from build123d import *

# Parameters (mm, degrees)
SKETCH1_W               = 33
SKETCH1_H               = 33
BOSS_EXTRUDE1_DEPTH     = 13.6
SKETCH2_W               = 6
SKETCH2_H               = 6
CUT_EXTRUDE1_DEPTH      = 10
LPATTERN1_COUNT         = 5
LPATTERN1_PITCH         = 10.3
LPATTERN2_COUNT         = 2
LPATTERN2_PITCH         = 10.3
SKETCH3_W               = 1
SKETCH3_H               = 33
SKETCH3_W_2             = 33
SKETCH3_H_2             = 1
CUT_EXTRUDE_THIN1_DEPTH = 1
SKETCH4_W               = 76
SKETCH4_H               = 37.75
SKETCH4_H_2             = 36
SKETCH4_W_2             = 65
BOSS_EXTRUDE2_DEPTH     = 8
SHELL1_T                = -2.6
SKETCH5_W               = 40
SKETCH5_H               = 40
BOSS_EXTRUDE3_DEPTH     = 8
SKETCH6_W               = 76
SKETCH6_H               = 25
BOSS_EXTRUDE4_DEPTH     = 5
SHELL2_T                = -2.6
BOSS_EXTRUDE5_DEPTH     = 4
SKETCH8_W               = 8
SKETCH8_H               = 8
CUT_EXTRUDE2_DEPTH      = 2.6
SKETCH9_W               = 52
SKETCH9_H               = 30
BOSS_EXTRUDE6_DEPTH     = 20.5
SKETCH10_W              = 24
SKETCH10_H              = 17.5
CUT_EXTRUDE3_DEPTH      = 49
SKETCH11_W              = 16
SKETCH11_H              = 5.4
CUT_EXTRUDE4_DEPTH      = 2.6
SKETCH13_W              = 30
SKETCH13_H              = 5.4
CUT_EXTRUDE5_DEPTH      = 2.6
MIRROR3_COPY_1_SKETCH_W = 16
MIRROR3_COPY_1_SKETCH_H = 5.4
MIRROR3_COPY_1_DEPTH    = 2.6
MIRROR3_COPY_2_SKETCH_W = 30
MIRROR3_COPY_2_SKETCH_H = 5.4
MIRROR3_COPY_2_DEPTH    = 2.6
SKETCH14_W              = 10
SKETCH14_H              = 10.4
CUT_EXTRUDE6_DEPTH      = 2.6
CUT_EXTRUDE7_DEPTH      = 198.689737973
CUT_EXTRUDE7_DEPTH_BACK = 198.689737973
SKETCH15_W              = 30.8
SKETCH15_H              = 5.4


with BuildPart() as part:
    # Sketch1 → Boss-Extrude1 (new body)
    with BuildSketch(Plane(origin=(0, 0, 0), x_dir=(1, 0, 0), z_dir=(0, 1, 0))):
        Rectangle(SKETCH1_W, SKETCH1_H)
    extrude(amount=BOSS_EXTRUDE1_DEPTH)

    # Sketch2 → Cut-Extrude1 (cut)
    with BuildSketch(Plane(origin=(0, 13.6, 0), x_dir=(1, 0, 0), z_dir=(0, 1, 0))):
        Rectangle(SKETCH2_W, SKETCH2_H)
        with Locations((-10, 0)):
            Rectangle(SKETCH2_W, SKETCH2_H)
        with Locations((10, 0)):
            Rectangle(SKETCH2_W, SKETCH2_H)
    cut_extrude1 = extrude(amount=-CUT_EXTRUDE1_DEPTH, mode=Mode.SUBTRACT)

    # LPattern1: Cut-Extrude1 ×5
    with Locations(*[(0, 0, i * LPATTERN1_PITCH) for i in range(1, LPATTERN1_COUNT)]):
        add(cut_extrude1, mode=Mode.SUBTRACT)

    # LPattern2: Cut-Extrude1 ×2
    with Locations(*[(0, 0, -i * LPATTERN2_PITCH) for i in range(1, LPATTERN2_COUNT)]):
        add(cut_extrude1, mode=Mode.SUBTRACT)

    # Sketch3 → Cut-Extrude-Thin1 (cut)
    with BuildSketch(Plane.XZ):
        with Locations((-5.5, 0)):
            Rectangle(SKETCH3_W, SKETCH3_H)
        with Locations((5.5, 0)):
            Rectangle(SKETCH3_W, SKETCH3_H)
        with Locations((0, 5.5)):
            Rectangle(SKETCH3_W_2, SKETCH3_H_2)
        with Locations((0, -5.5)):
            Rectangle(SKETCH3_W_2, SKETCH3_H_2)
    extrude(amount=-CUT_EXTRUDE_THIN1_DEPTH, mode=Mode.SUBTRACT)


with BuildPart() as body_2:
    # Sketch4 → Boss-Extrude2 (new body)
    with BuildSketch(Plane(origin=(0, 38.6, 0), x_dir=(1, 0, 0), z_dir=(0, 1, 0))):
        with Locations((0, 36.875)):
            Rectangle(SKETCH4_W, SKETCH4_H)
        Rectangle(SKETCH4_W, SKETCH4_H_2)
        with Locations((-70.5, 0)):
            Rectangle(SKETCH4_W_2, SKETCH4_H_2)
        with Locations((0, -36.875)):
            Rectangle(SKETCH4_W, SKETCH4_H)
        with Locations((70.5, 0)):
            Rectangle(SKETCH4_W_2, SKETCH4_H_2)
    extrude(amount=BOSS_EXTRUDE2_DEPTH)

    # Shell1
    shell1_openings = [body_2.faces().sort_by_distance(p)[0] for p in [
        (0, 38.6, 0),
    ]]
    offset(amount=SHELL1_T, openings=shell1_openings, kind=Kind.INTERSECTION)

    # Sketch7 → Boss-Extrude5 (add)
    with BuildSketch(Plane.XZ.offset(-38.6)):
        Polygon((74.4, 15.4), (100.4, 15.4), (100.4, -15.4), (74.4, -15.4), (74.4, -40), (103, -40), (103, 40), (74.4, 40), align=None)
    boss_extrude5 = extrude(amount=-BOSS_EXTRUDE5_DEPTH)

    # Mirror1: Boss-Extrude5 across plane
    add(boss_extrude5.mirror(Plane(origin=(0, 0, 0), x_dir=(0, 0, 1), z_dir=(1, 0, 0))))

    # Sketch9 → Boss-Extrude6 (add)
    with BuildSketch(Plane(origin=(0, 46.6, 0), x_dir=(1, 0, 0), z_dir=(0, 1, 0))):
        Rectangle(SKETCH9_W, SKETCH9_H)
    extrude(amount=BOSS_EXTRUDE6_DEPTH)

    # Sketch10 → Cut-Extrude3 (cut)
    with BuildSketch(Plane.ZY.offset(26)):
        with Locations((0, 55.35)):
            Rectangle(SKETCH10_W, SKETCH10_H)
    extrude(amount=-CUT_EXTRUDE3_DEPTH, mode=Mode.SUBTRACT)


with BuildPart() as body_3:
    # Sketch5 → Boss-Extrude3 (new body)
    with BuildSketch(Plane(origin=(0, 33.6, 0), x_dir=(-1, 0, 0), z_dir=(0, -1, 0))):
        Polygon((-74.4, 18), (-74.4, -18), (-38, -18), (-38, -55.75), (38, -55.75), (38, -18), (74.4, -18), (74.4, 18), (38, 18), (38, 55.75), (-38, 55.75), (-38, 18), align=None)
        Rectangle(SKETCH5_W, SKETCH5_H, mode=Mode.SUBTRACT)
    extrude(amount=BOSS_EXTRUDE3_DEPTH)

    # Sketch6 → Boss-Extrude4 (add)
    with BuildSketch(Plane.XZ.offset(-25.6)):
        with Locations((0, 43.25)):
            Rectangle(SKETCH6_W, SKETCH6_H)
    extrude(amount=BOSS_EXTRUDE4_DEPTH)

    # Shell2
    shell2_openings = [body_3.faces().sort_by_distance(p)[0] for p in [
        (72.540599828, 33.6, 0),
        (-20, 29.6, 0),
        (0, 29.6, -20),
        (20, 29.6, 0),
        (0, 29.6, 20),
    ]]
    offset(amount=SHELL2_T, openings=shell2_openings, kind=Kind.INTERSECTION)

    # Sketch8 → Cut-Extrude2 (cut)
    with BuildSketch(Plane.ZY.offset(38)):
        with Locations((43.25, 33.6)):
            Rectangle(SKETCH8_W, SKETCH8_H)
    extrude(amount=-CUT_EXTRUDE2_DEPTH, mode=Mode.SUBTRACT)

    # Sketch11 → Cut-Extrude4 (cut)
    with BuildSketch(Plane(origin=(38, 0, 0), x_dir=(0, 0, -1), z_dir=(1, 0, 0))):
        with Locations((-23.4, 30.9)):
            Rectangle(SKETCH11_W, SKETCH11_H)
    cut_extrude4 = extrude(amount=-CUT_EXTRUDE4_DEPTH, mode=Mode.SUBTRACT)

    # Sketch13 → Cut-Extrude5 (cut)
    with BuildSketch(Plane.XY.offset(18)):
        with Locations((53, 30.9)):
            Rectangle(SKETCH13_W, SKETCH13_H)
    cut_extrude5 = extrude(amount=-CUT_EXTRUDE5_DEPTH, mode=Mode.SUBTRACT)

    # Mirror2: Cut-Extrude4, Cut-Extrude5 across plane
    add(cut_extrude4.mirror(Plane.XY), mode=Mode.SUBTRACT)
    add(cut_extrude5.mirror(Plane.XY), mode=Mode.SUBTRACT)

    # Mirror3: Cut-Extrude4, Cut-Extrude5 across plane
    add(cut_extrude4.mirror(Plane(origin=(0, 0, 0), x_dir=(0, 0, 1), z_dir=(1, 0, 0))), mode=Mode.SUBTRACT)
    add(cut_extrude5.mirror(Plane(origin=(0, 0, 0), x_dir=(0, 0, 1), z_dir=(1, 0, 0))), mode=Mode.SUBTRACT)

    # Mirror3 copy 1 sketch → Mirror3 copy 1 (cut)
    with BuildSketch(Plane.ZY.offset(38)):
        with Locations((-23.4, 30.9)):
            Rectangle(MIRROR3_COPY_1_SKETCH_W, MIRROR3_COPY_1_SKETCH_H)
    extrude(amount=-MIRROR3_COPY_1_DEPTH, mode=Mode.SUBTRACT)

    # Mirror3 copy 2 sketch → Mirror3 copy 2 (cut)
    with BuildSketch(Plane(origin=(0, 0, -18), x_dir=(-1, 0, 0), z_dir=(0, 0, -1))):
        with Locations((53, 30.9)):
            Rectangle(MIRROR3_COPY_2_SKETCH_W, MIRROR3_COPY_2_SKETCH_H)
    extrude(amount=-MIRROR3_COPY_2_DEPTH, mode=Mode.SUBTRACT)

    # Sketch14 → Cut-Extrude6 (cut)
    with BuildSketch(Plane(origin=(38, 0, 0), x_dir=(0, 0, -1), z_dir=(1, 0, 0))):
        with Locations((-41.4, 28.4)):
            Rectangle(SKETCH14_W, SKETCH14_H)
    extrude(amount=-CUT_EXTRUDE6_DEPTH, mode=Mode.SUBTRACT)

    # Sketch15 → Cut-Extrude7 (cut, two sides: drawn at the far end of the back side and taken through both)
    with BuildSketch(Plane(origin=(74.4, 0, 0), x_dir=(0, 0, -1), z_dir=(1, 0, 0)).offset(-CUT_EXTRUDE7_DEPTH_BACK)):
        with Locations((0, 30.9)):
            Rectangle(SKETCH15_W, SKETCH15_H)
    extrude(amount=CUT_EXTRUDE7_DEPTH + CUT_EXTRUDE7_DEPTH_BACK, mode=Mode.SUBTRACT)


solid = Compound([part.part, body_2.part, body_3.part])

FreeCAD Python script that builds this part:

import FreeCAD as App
import Part
import Sketcher


def faces_at(feature, points):
    """Names of the faces that lie closest to the given points."""
    faces = feature.Shape.Faces
    near = lambda p: min(range(len(faces)), key=lambda i: faces[i].distToShape(Part.Vertex(*p))[0])
    return sorted({f"Face{near(p) + 1}" for p in points})


def add_polygon(sketch, points):
    """Adds a closed chain of lines whose ends are joined by coincident constraints."""
    first, n = sketch.GeometryCount, len(points)
    for a, b in zip(points, points[1:] + points[:1]):
        sketch.addGeometry(Part.LineSegment(App.Vector(*a, 0), App.Vector(*b, 0)), False)
    for i in range(n):
        sketch.addConstraint(Sketcher.Constraint("Coincident", first + i, 2, first + (i + 1) % n, 1))

doc = App.newDocument("Part")
body = doc.addObject("PartDesign::Body", "Body")

sketch1 = body.newObject("Sketcher::SketchObject", "Sketch")
sketch1.AttachmentSupport = (doc.getObject("XZ_Plane"), [""])
sketch1.MapMode = "FlatFace"
add_polygon(sketch1, [(-16, -16), (-16, 16), (16, 16), (16, -16)])
sketch1.addConstraint(Sketcher.Constraint("Vertical", 0))
sketch1.addConstraint(Sketcher.Constraint("Horizontal", 1))
sketch1.addConstraint(Sketcher.Constraint("Vertical", 2))
sketch1.addConstraint(Sketcher.Constraint("Horizontal", 3))
sketch1.addConstraint(Sketcher.Constraint("Symmetric", 0, 2, 2, 2, -1, 1))
sketch1.addConstraint(Sketcher.Constraint("Equal", 3, 0))
sketch1.addConstraint(Sketcher.Constraint("DistanceX", 1, 1, 1, 2, 33.0))
pad1 = body.newObject("PartDesign::Pad", "Pad")
pad1.Profile = sketch1
pad1.Length = 13.6
pad1.Reversed = True

sketch2 = body.newObject("Sketcher::SketchObject", "Sketch001")
sketch2.AttachmentSupport = (doc.getObject("XZ_Plane"), [""])
sketch2.MapMode = "FlatFace"
sketch2.AttachmentOffset = App.Placement(App.Vector(0, 0, -13.6), App.Rotation())
add_polygon(sketch2, [(-3, -3), (-3, 3), (3, 3), (3, -3)])
add_polygon(sketch2, [(-13, -3), (-13, 3), (-7, 3), (-7, -3)])
add_polygon(sketch2, [(7, -3), (7, 3), (13, 3), (13, -3)])
sketch2.addConstraint(Sketcher.Constraint("Vertical", 0))
sketch2.addConstraint(Sketcher.Constraint("Horizontal", 1))
sketch2.addConstraint(Sketcher.Constraint("Vertical", 2))
sketch2.addConstraint(Sketcher.Constraint("Horizontal", 3))
sketch2.addConstraint(Sketcher.Constraint("Vertical", 4))
sketch2.addConstraint(Sketcher.Constraint("Horizontal", 5))
sketch2.addConstraint(Sketcher.Constraint("Vertical", 6))
sketch2.addConstraint(Sketcher.Constraint("Horizontal", 7))
sketch2.addConstraint(Sketcher.Constraint("Vertical", 8))
sketch2.addConstraint(Sketcher.Constraint("Horizontal", 9))
sketch2.addConstraint(Sketcher.Constraint("Vertical", 10))
sketch2.addConstraint(Sketcher.Constraint("Horizontal", 11))
sketch2.addConstraint(Sketcher.Constraint("Symmetric", 0, 2, 2, 2, -1, 1))
sketch2.addConstraint(Sketcher.Constraint("Symmetric", 6, 2, 8, 2, -1, 1))
sketch2.addConstraint(Sketcher.Constraint("Symmetric", 4, 2, 10, 2, -1, 1))
sketch2.addConstraint(Sketcher.Constraint("Horizontal", 1, 2, 4, 2))
sketch2.addConstraint(Sketcher.Constraint("Horizontal", 3, 2, 6, 2))
sketch2.addConstraint(Sketcher.Constraint("Equal", 3, 5))
sketch2.addConstraint(Sketcher.Constraint("Equal", 11, 0))
sketch2.addConstraint(Sketcher.Constraint("DistanceX", 1, 1, 1, 2, 6.0))
sketch2.addConstraint(Sketcher.Constraint("DistanceX", 4, 2, -1, 1, 13.0))
pocket1 = body.newObject("PartDesign::Pocket", "Pocket")
pocket1.Profile = sketch2
pocket1.Length = 10
pocket1.Reversed = True
doc.recompute()

linearpattern = body.newObject("PartDesign::LinearPattern", "LinearPattern")
linearpattern.Originals = [pocket1]
linearpattern.Direction = (doc.getObject("Z_Axis"), [""])
linearpattern.Mode = "offset"
linearpattern.Offset = 10.3
linearpattern.Occurrences = 5
body.Tip = linearpattern
doc.recompute()

linearpattern2 = body.newObject("PartDesign::LinearPattern", "LinearPattern001")
linearpattern2.Originals = [pocket1]
linearpattern2.Direction = (doc.getObject("Z_Axis"), [""])
linearpattern2.Mode = "offset"
linearpattern2.Offset = 10.3
linearpattern2.Occurrences = 2
linearpattern2.Reversed = True
body.Tip = linearpattern2

sketch3 = body.newObject("Sketcher::SketchObject", "Sketch002")
sketch3.AttachmentSupport = (doc.getObject("XZ_Plane"), [""])
sketch3.MapMode = "FlatFace"
add_polygon(sketch3, [(-6, -6), (-6, -16.5), (-5, -16.5), (-5, -6), (5, -6), (5, -16.5), (6, -16.5), (6, -6), (16.5, -6), (16.5, -5), (6, -5), (6, 5), (16.5, 5), (16.5, 6), (6, 6), (6, 16.5), (5, 16.5), (5, 6), (-5, 6), (-5, 16.5), (-6, 16.5), (-6, 6), (-16.5, 6), (-16.5, 5), (-6, 5), (-6, -5), (-16.5, -5), (-16.5, -6)])
add_polygon(sketch3, [(5, 5), (5, -5), (-5, -5), (-5, 5)])
sketch3.addConstraint(Sketcher.Constraint("Vertical", 0))
sketch3.addConstraint(Sketcher.Constraint("Horizontal", 1))
sketch3.addConstraint(Sketcher.Constraint("Vertical", 2))
sketch3.addConstraint(Sketcher.Constraint("Horizontal", 3))
sketch3.addConstraint(Sketcher.Constraint("Vertical", 4))
sketch3.addConstraint(Sketcher.Constraint("Horizontal", 5))
sketch3.addConstraint(Sketcher.Constraint("Vertical", 6))
sketch3.addConstraint(Sketcher.Constraint("Horizontal", 7))
sketch3.addConstraint(Sketcher.Constraint("Vertical", 8))
sketch3.addConstraint(Sketcher.Constraint("Horizontal", 9))
sketch3.addConstraint(Sketcher.Constraint("Vertical", 10))
sketch3.addConstraint(Sketcher.Constraint("Horizontal", 11))
sketch3.addConstraint(Sketcher.Constraint("Vertical", 12))
sketch3.addConstraint(Sketcher.Constraint("Horizontal", 13))
sketch3.addConstraint(Sketcher.Constraint("Vertical", 14))
sketch3.addConstraint(Sketcher.Constraint("Horizontal", 15))
sketch3.addConstraint(Sketcher.Constraint("Vertical", 16))
sketch3.addConstraint(Sketcher.Constraint("Horizontal", 17))
sketch3.addConstraint(Sketcher.Constraint("Vertical", 18))
sketch3.addConstraint(Sketcher.Constraint("Horizontal", 19))
sketch3.addConstraint(Sketcher.Constraint("Vertical", 20))
sketch3.addConstraint(Sketcher.Constraint("Horizontal", 21))
sketch3.addConstraint(Sketcher.Constraint("Vertical", 22))
sketch3.addConstraint(Sketcher.Constraint("Horizontal", 23))
sketch3.addConstraint(Sketcher.Constraint("Vertical", 24))
sketch3.addConstraint(Sketcher.Constraint("Horizontal", 25))
sketch3.addConstraint(Sketcher.Constraint("Vertical", 26))
sketch3.addConstraint(Sketcher.Constraint("Horizontal", 27))
sketch3.addConstraint(Sketcher.Constraint("Vertical", 28))
sketch3.addConstraint(Sketcher.Constraint("Horizontal", 29))
sketch3.addConstraint(Sketcher.Constraint("Vertical", 30))
sketch3.addConstraint(Sketcher.Constraint("Horizontal", 31))
sketch3.addConstraint(Sketcher.Constraint("Symmetric", 0, 2, 14, 2, -1, 1))
sketch3.addConstraint(Sketcher.Constraint("Symmetric", 2, 2, 16, 2, -1, 1))
sketch3.addConstraint(Sketcher.Constraint("Symmetric", 4, 2, 18, 2, -1, 1))
sketch3.addConstraint(Sketcher.Constraint("Symmetric", 6, 2, 20, 2, -1, 1))
sketch3.addConstraint(Sketcher.Constraint("Symmetric", 8, 2, 22, 2, -1, 1))
sketch3.addConstraint(Sketcher.Constraint("Symmetric", 10, 2, 24, 2, -1, 1))
sketch3.addConstraint(Sketcher.Constraint("Symmetric", 12, 2, 26, 2, -1, 1))
sketch3.addConstraint(Sketcher.Constraint("Symmetric", 28, 2, 30, 2, -1, 1))
sketch3.addConstraint(Sketcher.Constraint("Symmetric", 1, 2, 4, 2, -2))
sketch3.addConstraint(Sketcher.Constraint("Symmetric", 13, 2, 20, 2, -2))
sketch3.addConstraint(Sketcher.Constraint("Symmetric", 11, 2, 22, 2, -2))
sketch3.addConstraint(Sketcher.Constraint("Horizontal", 3, 2, 6, 2))
sketch3.addConstraint(Sketcher.Constraint("Horizontal", 25, 2, 28, 2))
sketch3.addConstraint(Sketcher.Constraint("Vertical", 6, 2, 9, 2))
sketch3.addConstraint(Sketcher.Constraint("Vertical", 16, 2, 28, 2))
sketch3.addConstraint(Sketcher.Constraint("Equal", 27, 0))
sketch3.addConstraint(Sketcher.Constraint("Equal", 19, 8))
sketch3.addConstraint(Sketcher.Constraint("Equal", 31, 10))
sketch3.addConstraint(Sketcher.Constraint("DistanceX", 1, 1, 1, 2, 1.0))
sketch3.addConstraint(Sketcher.Constraint("DistanceX", 3, 1, 3, 2, 10.0))
sketch3.addConstraint(Sketcher.Constraint("DistanceX", 7, 1, 7, 2, 10.5))
pocket2 = body.newObject("PartDesign::Pocket", "Pocket001")
pocket2.Profile = sketch3
pocket2.Length = 1
body2 = doc.addObject("PartDesign::Body", "Body001")

sketch4 = body2.newObject("Sketcher::SketchObject", "Sketch003")
sketch4.AttachmentSupport = (doc.getObject("XZ_Plane001"), [""])
sketch4.MapMode = "FlatFace"
sketch4.AttachmentOffset = App.Placement(App.Vector(0, 0, -38.6), App.Rotation())
add_polygon(sketch4, [(-38, -56), (-38, -18), (-103, -18), (-103, 18), (-38, 18), (-38, 56), (38, 56), (38, 18), (103, 18), (103, -18), (38, -18), (38, -56)])
sketch4.addConstraint(Sketcher.Constraint("Vertical", 0))
sketch4.addConstraint(Sketcher.Constraint("Horizontal", 1))
sketch4.addConstraint(Sketcher.Constraint("Vertical", 2))
sketch4.addConstraint(Sketcher.Constraint("Horizontal", 3))
sketch4.addConstraint(Sketcher.Constraint("Vertical", 4))
sketch4.addConstraint(Sketcher.Constraint("Horizontal", 5))
sketch4.addConstraint(Sketcher.Constraint("Vertical", 6))
sketch4.addConstraint(Sketcher.Constraint("Horizontal", 7))
sketch4.addConstraint(Sketcher.Constraint("Vertical", 8))
sketch4.addConstraint(Sketcher.Constraint("Horizontal", 9))
sketch4.addConstraint(Sketcher.Constraint("Vertical", 10))
sketch4.addConstraint(Sketcher.Constraint("Horizontal", 11))
sketch4.addConstraint(Sketcher.Constraint("Symmetric", 0, 2, 6, 2, -1, 1))
sketch4.addConstraint(Sketcher.Constraint("Symmetric", 2, 2, 8, 2, -1, 1))
sketch4.addConstraint(Sketcher.Constraint("Symmetric", 4, 2, 10, 2, -1, 1))
sketch4.addConstraint(Sketcher.Constraint("Symmetric", 3, 2, 6, 2, -2))
sketch4.addConstraint(Sketcher.Constraint("DistanceX", 1, 2, 1, 1, 65.0))
sketch4.addConstraint(Sketcher.Constraint("DistanceX", 5, 1, 5, 2, 76.0))
sketch4.addConstraint(Sketcher.Constraint("DistanceY", 2, 1, 2, 2, 36.0))
sketch4.addConstraint(Sketcher.Constraint("DistanceY", 0, 1, 0, 2, 37.75))
pad2 = body2.newObject("PartDesign::Pad", "Pad001")
pad2.Profile = sketch4
pad2.Length = 8
pad2.Reversed = True
doc.recompute()

thickness = body2.newObject("PartDesign::Thickness", "Thickness")
thickness.Base = (pad2, faces_at(pad2, [(0, 38.6, 0)]))
thickness.Value = 2.6
thickness.Reversed = True
thickness.Join = "Intersection"

sketch5 = body2.newObject("Sketcher::SketchObject", "Sketch004")
sketch5.AttachmentSupport = (doc.getObject("XZ_Plane001"), [""])
sketch5.MapMode = "FlatFace"
sketch5.AttachmentOffset = App.Placement(App.Vector(0, 0, -38.6), App.Rotation())
add_polygon(sketch5, [(74, 15), (100, 15), (100, -15), (74, -15), (74, -40), (103, -40), (103, 40), (74, 40)])
sketch5.addConstraint(Sketcher.Constraint("Horizontal", 0))
sketch5.addConstraint(Sketcher.Constraint("Vertical", 1))
sketch5.addConstraint(Sketcher.Constraint("Horizontal", 2))
sketch5.addConstraint(Sketcher.Constraint("Vertical", 3))
sketch5.addConstraint(Sketcher.Constraint("Horizontal", 4))
sketch5.addConstraint(Sketcher.Constraint("Vertical", 5))
sketch5.addConstraint(Sketcher.Constraint("Horizontal", 6))
sketch5.addConstraint(Sketcher.Constraint("Vertical", 7))
sketch5.addConstraint(Sketcher.Constraint("Symmetric", 3, 2, 6, 2, -1))
sketch5.addConstraint(Sketcher.Constraint("Equal", 3, 7))
sketch5.addConstraint(Sketcher.Constraint("DistanceX", 0, 1, 0, 2, 26.0))
sketch5.addConstraint(Sketcher.Constraint("DistanceY", 5, 1, 5, 2, 80.0))
sketch5.addConstraint(Sketcher.Constraint("DistanceX", 4, 1, 4, 2, 28.6))
sketch5.addConstraint(Sketcher.Constraint("DistanceY", 1, 2, 1, 1, 30.8))
sketch5.addConstraint(Sketcher.Constraint("DistanceX", -1, 1, 4, 2, 103.0))
pad3 = body2.newObject("PartDesign::Pad", "Pad002")
pad3.Profile = sketch5
pad3.Length = 4
pad3.Reversed = True
doc.recompute()

mirrored = body2.newObject("PartDesign::Mirrored", "Mirrored")
mirrored.Originals = [pad3]
mirrored.MirrorPlane = (doc.getObject("YZ_Plane001"), [""])
body2.Tip = mirrored

sketch6 = body2.newObject("Sketcher::SketchObject", "Sketch005")
sketch6.AttachmentSupport = (doc.getObject("XZ_Plane001"), [""])
sketch6.MapMode = "FlatFace"
sketch6.AttachmentOffset = App.Placement(App.Vector(0, 0, -46.6), App.Rotation())
add_polygon(sketch6, [(-26, -15), (-26, 15), (26, 15), (26, -15)])
sketch6.addConstraint(Sketcher.Constraint("Vertical", 0))
sketch6.addConstraint(Sketcher.Constraint("Horizontal", 1))
sketch6.addConstraint(Sketcher.Constraint("Vertical", 2))
sketch6.addConstraint(Sketcher.Constraint("Horizontal", 3))
sketch6.addConstraint(Sketcher.Constraint("Symmetric", 0, 2, 2, 2, -1, 1))
sketch6.addConstraint(Sketcher.Constraint("DistanceX", 1, 1, 1, 2, 52.0))
sketch6.addConstraint(Sketcher.Constraint("DistanceY", 0, 1, 0, 2, 30.0))
pad4 = body2.newObject("PartDesign::Pad", "Pad003")
pad4.Profile = sketch6
pad4.Length = 20.5
pad4.Reversed = True

sketch7 = body2.newObject("Sketcher::SketchObject", "Sketch006")
sketch7.AttachmentSupport = (doc.getObject("YZ_Plane001"), [""])
sketch7.MapMode = "FlatFace"
sketch7.AttachmentOffset = App.Placement(App.Vector(0, 0, -26), App.Rotation())
add_polygon(sketch7, [(64, -12), (47, -12), (47, 12), (64, 12)])
sketch7.addConstraint(Sketcher.Constraint("Horizontal", 0))
sketch7.addConstraint(Sketcher.Constraint("Vertical", 1))
sketch7.addConstraint(Sketcher.Constraint("Horizontal", 2))
sketch7.addConstraint(Sketcher.Constraint("Vertical", 3))
sketch7.addConstraint(Sketcher.Constraint("DistanceY", 1, 1, 1, 2, 24.0))
sketch7.addConstraint(Sketcher.Constraint("DistanceX", 0, 2, 0, 1, 17.5))
sketch7.addConstraint(Sketcher.Constraint("DistanceY", 0, 2, -1, 1, 12.0))
sketch7.addConstraint(Sketcher.Constraint("DistanceX", -1, 1, 0, 2, 46.6))
pocket3 = body2.newObject("PartDesign::Pocket", "Pocket002")
pocket3.Profile = sketch7
pocket3.Length = 49
pocket3.Reversed = True
body3 = doc.addObject("PartDesign::Body", "Body002")

sketch8 = body3.newObject("Sketcher::SketchObject", "Sketch007")
sketch8.AttachmentSupport = (doc.getObject("XZ_Plane002"), [""])
sketch8.MapMode = "FlatFace"
sketch8.AttachmentOffset = App.Placement(App.Vector(0, 0, -33.6), App.Rotation())
add_polygon(sketch8, [(74, -18), (74, 18), (38, 18), (38, 56), (-38, 56), (-38, 18), (-74, 18), (-74, -18), (-38, -18), (-38, -56), (38, -56), (38, -18)])
add_polygon(sketch8, [(-20, 20), (20, 20), (20, -20), (-20, -20)])
sketch8.addConstraint(Sketcher.Constraint("Vertical", 0))
sketch8.addConstraint(Sketcher.Constraint("Horizontal", 1))
sketch8.addConstraint(Sketcher.Constraint("Vertical", 2))
sketch8.addConstraint(Sketcher.Constraint("Horizontal", 3))
sketch8.addConstraint(Sketcher.Constraint("Vertical", 4))
sketch8.addConstraint(Sketcher.Constraint("Horizontal", 5))
sketch8.addConstraint(Sketcher.Constraint("Vertical", 6))
sketch8.addConstraint(Sketcher.Constraint("Horizontal", 7))
sketch8.addConstraint(Sketcher.Constraint("Vertical", 8))
sketch8.addConstraint(Sketcher.Constraint("Horizontal", 9))
sketch8.addConstraint(Sketcher.Constraint("Vertical", 10))
sketch8.addConstraint(Sketcher.Constraint("Horizontal", 11))
sketch8.addConstraint(Sketcher.Constraint("Horizontal", 12))
sketch8.addConstraint(Sketcher.Constraint("Vertical", 13))
sketch8.addConstraint(Sketcher.Constraint("Horizontal", 14))
sketch8.addConstraint(Sketcher.Constraint("Vertical", 15))
sketch8.addConstraint(Sketcher.Constraint("Symmetric", 0, 2, 6, 2, -1, 1))
sketch8.addConstraint(Sketcher.Constraint("Symmetric", 2, 2, 8, 2, -1, 1))
sketch8.addConstraint(Sketcher.Constraint("Symmetric", 4, 2, 10, 2, -1, 1))
sketch8.addConstraint(Sketcher.Constraint("Symmetric", 12, 2, 14, 2, -1, 1))
sketch8.addConstraint(Sketcher.Constraint("Symmetric", 1, 2, 4, 2, -2))
sketch8.addConstraint(Sketcher.Constraint("Equal", 14, 13))
sketch8.addConstraint(Sketcher.Constraint("DistanceX", 3, 2, 3, 1, 76.0))
sketch8.addConstraint(Sketcher.Constraint("DistanceX", 12, 1, 12, 2, 40.0))
sketch8.addConstraint(Sketcher.Constraint("DistanceY", 0, 1, 0, 2, 36.0))
sketch8.addConstraint(Sketcher.Constraint("DistanceX", 1, 2, 1, 1, 36.4))
sketch8.addConstraint(Sketcher.Constraint("DistanceY", 2, 1, 2, 2, 37.75))
pad5 = body3.newObject("PartDesign::Pad", "Pad004")
pad5.Profile = sketch8
pad5.Length = 8

sketch9 = body3.newObject("Sketcher::SketchObject", "Sketch008")
sketch9.AttachmentSupport = (doc.getObject("XZ_Plane002"), [""])
sketch9.MapMode = "FlatFace"
sketch9.AttachmentOffset = App.Placement(App.Vector(0, 0, -25.6), App.Rotation())
add_polygon(sketch9, [(-38, 56), (-38, 31), (38, 31), (38, 56)])
sketch9.addConstraint(Sketcher.Constraint("Vertical", 0))
sketch9.addConstraint(Sketcher.Constraint("Horizontal", 1))
sketch9.addConstraint(Sketcher.Constraint("Vertical", 2))
sketch9.addConstraint(Sketcher.Constraint("Horizontal", 3))
sketch9.addConstraint(Sketcher.Constraint("DistanceX", 1, 1, 1, 2, 76.0))
sketch9.addConstraint(Sketcher.Constraint("DistanceY", 0, 2, 0, 1, 25.0))
sketch9.addConstraint(Sketcher.Constraint("DistanceX", 0, 2, -1, 1, 38.0))
sketch9.addConstraint(Sketcher.Constraint("DistanceY", -1, 1, 0, 2, 30.75))
pad6 = body3.newObject("PartDesign::Pad", "Pad005")
pad6.Profile = sketch9
pad6.Length = 5
doc.recompute()

thickness2 = body3.newObject("PartDesign::Thickness", "Thickness001")
thickness2.Base = (pad6, faces_at(pad6, [
    (29.76, 33.6, 22.3),
    (-20, 29.6, 0),
    (0, 29.6, -20),
    (20, 29.6, 0),
    (0, 29.6, 20),
]))
thickness2.Value = 2.6
thickness2.Reversed = True
thickness2.Join = "Intersection"

sketch10 = body3.newObject("Sketcher::SketchObject", "Sketch009")
sketch10.AttachmentSupport = (doc.getObject("YZ_Plane002"), [""])
sketch10.MapMode = "FlatFace"
sketch10.AttachmentOffset = App.Placement(App.Vector(0, 0, -38), App.Rotation())
add_polygon(sketch10, [(38, 39), (30, 39), (30, 47), (38, 47)])
sketch10.addConstraint(Sketcher.Constraint("Horizontal", 0))
sketch10.addConstraint(Sketcher.Constraint("Vertical", 1))
sketch10.addConstraint(Sketcher.Constraint("Horizontal", 2))
sketch10.addConstraint(Sketcher.Constraint("Vertical", 3))
sketch10.addConstraint(Sketcher.Constraint("Equal", 2, 1))
sketch10.addConstraint(Sketcher.Constraint("DistanceX", 0, 2, 0, 1, 8.0))
sketch10.addConstraint(Sketcher.Constraint("DistanceX", -1, 1, 0, 2, 29.6))
sketch10.addConstraint(Sketcher.Constraint("DistanceY", -1, 1, 0, 2, 39.25))
pocket4 = body3.newObject("PartDesign::Pocket", "Pocket003")
pocket4.Profile = sketch10
pocket4.Length = 2.6
pocket4.Reversed = True

sketch11 = body3.newObject("Sketcher::SketchObject", "Sketch010")
sketch11.AttachmentSupport = (doc.getObject("YZ_Plane002"), [""])
sketch11.MapMode = "FlatFace"
sketch11.AttachmentOffset = App.Placement(App.Vector(0, 0, 38), App.Rotation())
add_polygon(sketch11, [(34, 31), (28, 31), (28, 15), (34, 15)])
sketch11.addConstraint(Sketcher.Constraint("Horizontal", 0))
sketch11.addConstraint(Sketcher.Constraint("Vertical", 1))
sketch11.addConstraint(Sketcher.Constraint("Horizontal", 2))
sketch11.addConstraint(Sketcher.Constraint("Vertical", 3))
sketch11.addConstraint(Sketcher.Constraint("DistanceY", 1, 2, 1, 1, 16.0))
sketch11.addConstraint(Sketcher.Constraint("DistanceX", 0, 2, 0, 1, 5.4))
sketch11.addConstraint(Sketcher.Constraint("DistanceX", -1, 1, 0, 2, 28.2))
sketch11.addConstraint(Sketcher.Constraint("DistanceY", -1, 1, 0, 2, 31.4))
pocket5 = body3.newObject("PartDesign::Pocket", "Pocket004")
pocket5.Profile = sketch11
pocket5.Length = 2.6

sketch12 = body3.newObject("Sketcher::SketchObject", "Sketch011")
sketch12.AttachmentSupport = (doc.getObject("XY_Plane002"), [""])
sketch12.MapMode = "FlatFace"
sketch12.AttachmentOffset = App.Placement(App.Vector(0, 0, 18), App.Rotation())
add_polygon(sketch12, [(38, 34), (38, 28), (68, 28), (68, 34)])
sketch12.addConstraint(Sketcher.Constraint("Vertical", 0))
sketch12.addConstraint(Sketcher.Constraint("Horizontal", 1))
sketch12.addConstraint(Sketcher.Constraint("Vertical", 2))
sketch12.addConstraint(Sketcher.Constraint("Horizontal", 3))
sketch12.addConstraint(Sketcher.Constraint("DistanceX", 1, 1, 1, 2, 30.0))
sketch12.addConstraint(Sketcher.Constraint("DistanceY", 0, 2, 0, 1, 5.4))
sketch12.addConstraint(Sketcher.Constraint("DistanceX", -1, 1, 0, 2, 38.0))
sketch12.addConstraint(Sketcher.Constraint("DistanceY", -1, 1, 0, 2, 28.2))
pocket6 = body3.newObject("PartDesign::Pocket", "Pocket005")
pocket6.Profile = sketch12
pocket6.Length = 2.6
doc.recompute()

mirrored2 = body3.newObject("PartDesign::Mirrored", "Mirrored001")
mirrored2.Originals = [pocket5, pocket6]
mirrored2.MirrorPlane = (doc.getObject("XY_Plane002"), [""])
body3.Tip = mirrored2
doc.recompute()

mirrored3 = body3.newObject("PartDesign::Mirrored", "Mirrored002")
mirrored3.Originals = [pocket5, pocket6]
mirrored3.MirrorPlane = (doc.getObject("YZ_Plane002"), [""])
body3.Tip = mirrored3

sketch13 = body3.newObject("Sketcher::SketchObject", "Sketch012")
sketch13.AttachmentSupport = (doc.getObject("YZ_Plane002"), [""])
sketch13.MapMode = "FlatFace"
sketch13.AttachmentOffset = App.Placement(App.Vector(0, 0, -38), App.Rotation())
add_polygon(sketch13, [(34, -31), (28, -31), (28, -15), (34, -15)])
sketch13.addConstraint(Sketcher.Constraint("Horizontal", 0))
sketch13.addConstraint(Sketcher.Constraint("Vertical", 1))
sketch13.addConstraint(Sketcher.Constraint("Horizontal", 2))
sketch13.addConstraint(Sketcher.Constraint("Vertical", 3))
sketch13.addConstraint(Sketcher.Constraint("DistanceY", 1, 1, 1, 2, 16.0))
sketch13.addConstraint(Sketcher.Constraint("DistanceX", 0, 2, 0, 1, 5.4))
sketch13.addConstraint(Sketcher.Constraint("DistanceX", -1, 1, 0, 2, 28.2))
sketch13.addConstraint(Sketcher.Constraint("DistanceY", 0, 2, -1, 1, 31.4))
pocket7 = body3.newObject("PartDesign::Pocket", "Pocket006")
pocket7.Profile = sketch13
pocket7.Length = 2.6
pocket7.Reversed = True

sketch14 = body3.newObject("Sketcher::SketchObject", "Sketch013")
sketch14.AttachmentSupport = (doc.getObject("XY_Plane002"), [""])
sketch14.MapMode = "FlatFace"
sketch14.AttachmentOffset = App.Placement(App.Vector(0, 0, -18), App.Rotation())
add_polygon(sketch14, [(-38, 34), (-38, 28), (-68, 28), (-68, 34)])
sketch14.addConstraint(Sketcher.Constraint("Vertical", 0))
sketch14.addConstraint(Sketcher.Constraint("Horizontal", 1))
sketch14.addConstraint(Sketcher.Constraint("Vertical", 2))
sketch14.addConstraint(Sketcher.Constraint("Horizontal", 3))
sketch14.addConstraint(Sketcher.Constraint("DistanceX", 1, 2, 1, 1, 30.0))
sketch14.addConstraint(Sketcher.Constraint("DistanceY", 0, 2, 0, 1, 5.4))
sketch14.addConstraint(Sketcher.Constraint("DistanceX", 0, 2, -1, 1, 38.0))
sketch14.addConstraint(Sketcher.Constraint("DistanceY", -1, 1, 0, 2, 28.2))
pocket8 = body3.newObject("PartDesign::Pocket", "Pocket007")
pocket8.Profile = sketch14
pocket8.Length = 2.6
pocket8.Reversed = True

sketch15 = body3.newObject("Sketcher::SketchObject", "Sketch014")
sketch15.AttachmentSupport = (doc.getObject("YZ_Plane002"), [""])
sketch15.MapMode = "FlatFace"
sketch15.AttachmentOffset = App.Placement(App.Vector(0, 0, 38), App.Rotation())
add_polygon(sketch15, [(34, 46), (23, 46), (23, 36), (34, 36)])
sketch15.addConstraint(Sketcher.Constraint("Horizontal", 0))
sketch15.addConstraint(Sketcher.Constraint("Vertical", 1))
sketch15.addConstraint(Sketcher.Constraint("Horizontal", 2))
sketch15.addConstraint(Sketcher.Constraint("Vertical", 3))
sketch15.addConstraint(Sketcher.Constraint("DistanceY", 1, 2, 1, 1, 10.0))
sketch15.addConstraint(Sketcher.Constraint("DistanceX", 0, 2, 0, 1, 10.4))
sketch15.addConstraint(Sketcher.Constraint("DistanceX", -1, 1, 0, 2, 23.2))
sketch15.addConstraint(Sketcher.Constraint("DistanceY", -1, 1, 0, 2, 46.4))
pocket9 = body3.newObject("PartDesign::Pocket", "Pocket008")
pocket9.Profile = sketch15
pocket9.Length = 2.6

sketch16 = body3.newObject("Sketcher::SketchObject", "Sketch015")
sketch16.AttachmentSupport = (doc.getObject("YZ_Plane002"), [""])
sketch16.MapMode = "FlatFace"
sketch16.AttachmentOffset = App.Placement(App.Vector(0, 0, 74.4), App.Rotation())
add_polygon(sketch16, [(34, 15), (28, 15), (28, -15), (34, -15)])
sketch16.addConstraint(Sketcher.Constraint("Horizontal", 0))
sketch16.addConstraint(Sketcher.Constraint("Vertical", 1))
sketch16.addConstraint(Sketcher.Constraint("Horizontal", 2))
sketch16.addConstraint(Sketcher.Constraint("Vertical", 3))
sketch16.addConstraint(Sketcher.Constraint("DistanceX", 0, 2, 0, 1, 5.4))
sketch16.addConstraint(Sketcher.Constraint("DistanceY", 1, 2, 1, 1, 30.8))
sketch16.addConstraint(Sketcher.Constraint("DistanceX", -1, 1, 0, 2, 28.2))
sketch16.addConstraint(Sketcher.Constraint("DistanceY", -1, 1, 0, 2, 15.4))
pocket10 = body3.newObject("PartDesign::Pocket", "Pocket009")
pocket10.Profile = sketch16
pocket10.Type = "ThroughAll"
pocket10.Midplane = True

doc.recompute()
